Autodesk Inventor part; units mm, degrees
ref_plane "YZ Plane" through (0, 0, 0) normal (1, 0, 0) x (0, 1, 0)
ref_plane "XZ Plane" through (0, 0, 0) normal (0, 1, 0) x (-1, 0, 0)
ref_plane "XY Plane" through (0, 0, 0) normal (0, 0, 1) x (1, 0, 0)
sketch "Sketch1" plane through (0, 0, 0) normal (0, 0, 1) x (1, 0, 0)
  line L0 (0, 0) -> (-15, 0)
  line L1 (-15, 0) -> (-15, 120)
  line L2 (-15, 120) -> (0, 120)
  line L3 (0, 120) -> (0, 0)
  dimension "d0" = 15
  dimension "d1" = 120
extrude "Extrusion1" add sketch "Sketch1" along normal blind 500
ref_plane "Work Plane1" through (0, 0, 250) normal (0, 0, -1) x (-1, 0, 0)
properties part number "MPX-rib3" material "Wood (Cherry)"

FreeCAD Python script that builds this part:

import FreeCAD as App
import Part
import Sketcher
from FreeCAD import Vector
Q = App.Units.Quantity

doc = App.newDocument("Part")
body = doc.addObject("PartDesign::Body", "Body")

# Sketch on XY plane
sketch1 = doc.addObject("Sketcher::SketchObject", "Sketch")
body.addObject(sketch1)
sketch1.AttachmentSupport = (doc.XY_Plane, [""])
sketch1.MapMode = "FlatFace"
sketch1.addGeometry(Part.LineSegment(Vector(-15, 0, 0), Vector(0, 0, 0)), False)
sketch1.addGeometry(Part.LineSegment(Vector(0, 0, 0), Vector(0, 120, 0)), False)
sketch1.addGeometry(Part.LineSegment(Vector(0, 120, 0), Vector(-15, 120, 0)), False)
sketch1.addGeometry(Part.LineSegment(Vector(-15, 120, 0), Vector(-15, 0, 0)), False)
sketch1.addConstraint(Sketcher.Constraint("Coincident", 0, 2, 1, 1))
sketch1.addConstraint(Sketcher.Constraint("Coincident", 1, 2, 2, 1))
sketch1.addConstraint(Sketcher.Constraint("Coincident", 2, 2, 3, 1))
sketch1.addConstraint(Sketcher.Constraint("Coincident", 3, 2, 0, 1))
sketch1.addConstraint(Sketcher.Constraint("Horizontal", 0))
sketch1.addConstraint(Sketcher.Constraint("Vertical", 1))
sketch1.addConstraint(Sketcher.Constraint("Horizontal", 2))
sketch1.addConstraint(Sketcher.Constraint("Vertical", 3))
sketch1.addConstraint(Sketcher.Constraint("Coincident", 0, 2, -1, 1))
sketch1.addConstraint(Sketcher.Constraint("DistanceX", 0, 1, 0, 2, Q("15 mm")))
sketch1.addConstraint(Sketcher.Constraint("DistanceY", 1, 1, 1, 2, Q("120 mm")))
pad1 = doc.addObject("PartDesign::Pad", "Pad")
body.addObject(pad1)
pad1.Profile = sketch1
pad1.Length = 500

doc.recompute()
